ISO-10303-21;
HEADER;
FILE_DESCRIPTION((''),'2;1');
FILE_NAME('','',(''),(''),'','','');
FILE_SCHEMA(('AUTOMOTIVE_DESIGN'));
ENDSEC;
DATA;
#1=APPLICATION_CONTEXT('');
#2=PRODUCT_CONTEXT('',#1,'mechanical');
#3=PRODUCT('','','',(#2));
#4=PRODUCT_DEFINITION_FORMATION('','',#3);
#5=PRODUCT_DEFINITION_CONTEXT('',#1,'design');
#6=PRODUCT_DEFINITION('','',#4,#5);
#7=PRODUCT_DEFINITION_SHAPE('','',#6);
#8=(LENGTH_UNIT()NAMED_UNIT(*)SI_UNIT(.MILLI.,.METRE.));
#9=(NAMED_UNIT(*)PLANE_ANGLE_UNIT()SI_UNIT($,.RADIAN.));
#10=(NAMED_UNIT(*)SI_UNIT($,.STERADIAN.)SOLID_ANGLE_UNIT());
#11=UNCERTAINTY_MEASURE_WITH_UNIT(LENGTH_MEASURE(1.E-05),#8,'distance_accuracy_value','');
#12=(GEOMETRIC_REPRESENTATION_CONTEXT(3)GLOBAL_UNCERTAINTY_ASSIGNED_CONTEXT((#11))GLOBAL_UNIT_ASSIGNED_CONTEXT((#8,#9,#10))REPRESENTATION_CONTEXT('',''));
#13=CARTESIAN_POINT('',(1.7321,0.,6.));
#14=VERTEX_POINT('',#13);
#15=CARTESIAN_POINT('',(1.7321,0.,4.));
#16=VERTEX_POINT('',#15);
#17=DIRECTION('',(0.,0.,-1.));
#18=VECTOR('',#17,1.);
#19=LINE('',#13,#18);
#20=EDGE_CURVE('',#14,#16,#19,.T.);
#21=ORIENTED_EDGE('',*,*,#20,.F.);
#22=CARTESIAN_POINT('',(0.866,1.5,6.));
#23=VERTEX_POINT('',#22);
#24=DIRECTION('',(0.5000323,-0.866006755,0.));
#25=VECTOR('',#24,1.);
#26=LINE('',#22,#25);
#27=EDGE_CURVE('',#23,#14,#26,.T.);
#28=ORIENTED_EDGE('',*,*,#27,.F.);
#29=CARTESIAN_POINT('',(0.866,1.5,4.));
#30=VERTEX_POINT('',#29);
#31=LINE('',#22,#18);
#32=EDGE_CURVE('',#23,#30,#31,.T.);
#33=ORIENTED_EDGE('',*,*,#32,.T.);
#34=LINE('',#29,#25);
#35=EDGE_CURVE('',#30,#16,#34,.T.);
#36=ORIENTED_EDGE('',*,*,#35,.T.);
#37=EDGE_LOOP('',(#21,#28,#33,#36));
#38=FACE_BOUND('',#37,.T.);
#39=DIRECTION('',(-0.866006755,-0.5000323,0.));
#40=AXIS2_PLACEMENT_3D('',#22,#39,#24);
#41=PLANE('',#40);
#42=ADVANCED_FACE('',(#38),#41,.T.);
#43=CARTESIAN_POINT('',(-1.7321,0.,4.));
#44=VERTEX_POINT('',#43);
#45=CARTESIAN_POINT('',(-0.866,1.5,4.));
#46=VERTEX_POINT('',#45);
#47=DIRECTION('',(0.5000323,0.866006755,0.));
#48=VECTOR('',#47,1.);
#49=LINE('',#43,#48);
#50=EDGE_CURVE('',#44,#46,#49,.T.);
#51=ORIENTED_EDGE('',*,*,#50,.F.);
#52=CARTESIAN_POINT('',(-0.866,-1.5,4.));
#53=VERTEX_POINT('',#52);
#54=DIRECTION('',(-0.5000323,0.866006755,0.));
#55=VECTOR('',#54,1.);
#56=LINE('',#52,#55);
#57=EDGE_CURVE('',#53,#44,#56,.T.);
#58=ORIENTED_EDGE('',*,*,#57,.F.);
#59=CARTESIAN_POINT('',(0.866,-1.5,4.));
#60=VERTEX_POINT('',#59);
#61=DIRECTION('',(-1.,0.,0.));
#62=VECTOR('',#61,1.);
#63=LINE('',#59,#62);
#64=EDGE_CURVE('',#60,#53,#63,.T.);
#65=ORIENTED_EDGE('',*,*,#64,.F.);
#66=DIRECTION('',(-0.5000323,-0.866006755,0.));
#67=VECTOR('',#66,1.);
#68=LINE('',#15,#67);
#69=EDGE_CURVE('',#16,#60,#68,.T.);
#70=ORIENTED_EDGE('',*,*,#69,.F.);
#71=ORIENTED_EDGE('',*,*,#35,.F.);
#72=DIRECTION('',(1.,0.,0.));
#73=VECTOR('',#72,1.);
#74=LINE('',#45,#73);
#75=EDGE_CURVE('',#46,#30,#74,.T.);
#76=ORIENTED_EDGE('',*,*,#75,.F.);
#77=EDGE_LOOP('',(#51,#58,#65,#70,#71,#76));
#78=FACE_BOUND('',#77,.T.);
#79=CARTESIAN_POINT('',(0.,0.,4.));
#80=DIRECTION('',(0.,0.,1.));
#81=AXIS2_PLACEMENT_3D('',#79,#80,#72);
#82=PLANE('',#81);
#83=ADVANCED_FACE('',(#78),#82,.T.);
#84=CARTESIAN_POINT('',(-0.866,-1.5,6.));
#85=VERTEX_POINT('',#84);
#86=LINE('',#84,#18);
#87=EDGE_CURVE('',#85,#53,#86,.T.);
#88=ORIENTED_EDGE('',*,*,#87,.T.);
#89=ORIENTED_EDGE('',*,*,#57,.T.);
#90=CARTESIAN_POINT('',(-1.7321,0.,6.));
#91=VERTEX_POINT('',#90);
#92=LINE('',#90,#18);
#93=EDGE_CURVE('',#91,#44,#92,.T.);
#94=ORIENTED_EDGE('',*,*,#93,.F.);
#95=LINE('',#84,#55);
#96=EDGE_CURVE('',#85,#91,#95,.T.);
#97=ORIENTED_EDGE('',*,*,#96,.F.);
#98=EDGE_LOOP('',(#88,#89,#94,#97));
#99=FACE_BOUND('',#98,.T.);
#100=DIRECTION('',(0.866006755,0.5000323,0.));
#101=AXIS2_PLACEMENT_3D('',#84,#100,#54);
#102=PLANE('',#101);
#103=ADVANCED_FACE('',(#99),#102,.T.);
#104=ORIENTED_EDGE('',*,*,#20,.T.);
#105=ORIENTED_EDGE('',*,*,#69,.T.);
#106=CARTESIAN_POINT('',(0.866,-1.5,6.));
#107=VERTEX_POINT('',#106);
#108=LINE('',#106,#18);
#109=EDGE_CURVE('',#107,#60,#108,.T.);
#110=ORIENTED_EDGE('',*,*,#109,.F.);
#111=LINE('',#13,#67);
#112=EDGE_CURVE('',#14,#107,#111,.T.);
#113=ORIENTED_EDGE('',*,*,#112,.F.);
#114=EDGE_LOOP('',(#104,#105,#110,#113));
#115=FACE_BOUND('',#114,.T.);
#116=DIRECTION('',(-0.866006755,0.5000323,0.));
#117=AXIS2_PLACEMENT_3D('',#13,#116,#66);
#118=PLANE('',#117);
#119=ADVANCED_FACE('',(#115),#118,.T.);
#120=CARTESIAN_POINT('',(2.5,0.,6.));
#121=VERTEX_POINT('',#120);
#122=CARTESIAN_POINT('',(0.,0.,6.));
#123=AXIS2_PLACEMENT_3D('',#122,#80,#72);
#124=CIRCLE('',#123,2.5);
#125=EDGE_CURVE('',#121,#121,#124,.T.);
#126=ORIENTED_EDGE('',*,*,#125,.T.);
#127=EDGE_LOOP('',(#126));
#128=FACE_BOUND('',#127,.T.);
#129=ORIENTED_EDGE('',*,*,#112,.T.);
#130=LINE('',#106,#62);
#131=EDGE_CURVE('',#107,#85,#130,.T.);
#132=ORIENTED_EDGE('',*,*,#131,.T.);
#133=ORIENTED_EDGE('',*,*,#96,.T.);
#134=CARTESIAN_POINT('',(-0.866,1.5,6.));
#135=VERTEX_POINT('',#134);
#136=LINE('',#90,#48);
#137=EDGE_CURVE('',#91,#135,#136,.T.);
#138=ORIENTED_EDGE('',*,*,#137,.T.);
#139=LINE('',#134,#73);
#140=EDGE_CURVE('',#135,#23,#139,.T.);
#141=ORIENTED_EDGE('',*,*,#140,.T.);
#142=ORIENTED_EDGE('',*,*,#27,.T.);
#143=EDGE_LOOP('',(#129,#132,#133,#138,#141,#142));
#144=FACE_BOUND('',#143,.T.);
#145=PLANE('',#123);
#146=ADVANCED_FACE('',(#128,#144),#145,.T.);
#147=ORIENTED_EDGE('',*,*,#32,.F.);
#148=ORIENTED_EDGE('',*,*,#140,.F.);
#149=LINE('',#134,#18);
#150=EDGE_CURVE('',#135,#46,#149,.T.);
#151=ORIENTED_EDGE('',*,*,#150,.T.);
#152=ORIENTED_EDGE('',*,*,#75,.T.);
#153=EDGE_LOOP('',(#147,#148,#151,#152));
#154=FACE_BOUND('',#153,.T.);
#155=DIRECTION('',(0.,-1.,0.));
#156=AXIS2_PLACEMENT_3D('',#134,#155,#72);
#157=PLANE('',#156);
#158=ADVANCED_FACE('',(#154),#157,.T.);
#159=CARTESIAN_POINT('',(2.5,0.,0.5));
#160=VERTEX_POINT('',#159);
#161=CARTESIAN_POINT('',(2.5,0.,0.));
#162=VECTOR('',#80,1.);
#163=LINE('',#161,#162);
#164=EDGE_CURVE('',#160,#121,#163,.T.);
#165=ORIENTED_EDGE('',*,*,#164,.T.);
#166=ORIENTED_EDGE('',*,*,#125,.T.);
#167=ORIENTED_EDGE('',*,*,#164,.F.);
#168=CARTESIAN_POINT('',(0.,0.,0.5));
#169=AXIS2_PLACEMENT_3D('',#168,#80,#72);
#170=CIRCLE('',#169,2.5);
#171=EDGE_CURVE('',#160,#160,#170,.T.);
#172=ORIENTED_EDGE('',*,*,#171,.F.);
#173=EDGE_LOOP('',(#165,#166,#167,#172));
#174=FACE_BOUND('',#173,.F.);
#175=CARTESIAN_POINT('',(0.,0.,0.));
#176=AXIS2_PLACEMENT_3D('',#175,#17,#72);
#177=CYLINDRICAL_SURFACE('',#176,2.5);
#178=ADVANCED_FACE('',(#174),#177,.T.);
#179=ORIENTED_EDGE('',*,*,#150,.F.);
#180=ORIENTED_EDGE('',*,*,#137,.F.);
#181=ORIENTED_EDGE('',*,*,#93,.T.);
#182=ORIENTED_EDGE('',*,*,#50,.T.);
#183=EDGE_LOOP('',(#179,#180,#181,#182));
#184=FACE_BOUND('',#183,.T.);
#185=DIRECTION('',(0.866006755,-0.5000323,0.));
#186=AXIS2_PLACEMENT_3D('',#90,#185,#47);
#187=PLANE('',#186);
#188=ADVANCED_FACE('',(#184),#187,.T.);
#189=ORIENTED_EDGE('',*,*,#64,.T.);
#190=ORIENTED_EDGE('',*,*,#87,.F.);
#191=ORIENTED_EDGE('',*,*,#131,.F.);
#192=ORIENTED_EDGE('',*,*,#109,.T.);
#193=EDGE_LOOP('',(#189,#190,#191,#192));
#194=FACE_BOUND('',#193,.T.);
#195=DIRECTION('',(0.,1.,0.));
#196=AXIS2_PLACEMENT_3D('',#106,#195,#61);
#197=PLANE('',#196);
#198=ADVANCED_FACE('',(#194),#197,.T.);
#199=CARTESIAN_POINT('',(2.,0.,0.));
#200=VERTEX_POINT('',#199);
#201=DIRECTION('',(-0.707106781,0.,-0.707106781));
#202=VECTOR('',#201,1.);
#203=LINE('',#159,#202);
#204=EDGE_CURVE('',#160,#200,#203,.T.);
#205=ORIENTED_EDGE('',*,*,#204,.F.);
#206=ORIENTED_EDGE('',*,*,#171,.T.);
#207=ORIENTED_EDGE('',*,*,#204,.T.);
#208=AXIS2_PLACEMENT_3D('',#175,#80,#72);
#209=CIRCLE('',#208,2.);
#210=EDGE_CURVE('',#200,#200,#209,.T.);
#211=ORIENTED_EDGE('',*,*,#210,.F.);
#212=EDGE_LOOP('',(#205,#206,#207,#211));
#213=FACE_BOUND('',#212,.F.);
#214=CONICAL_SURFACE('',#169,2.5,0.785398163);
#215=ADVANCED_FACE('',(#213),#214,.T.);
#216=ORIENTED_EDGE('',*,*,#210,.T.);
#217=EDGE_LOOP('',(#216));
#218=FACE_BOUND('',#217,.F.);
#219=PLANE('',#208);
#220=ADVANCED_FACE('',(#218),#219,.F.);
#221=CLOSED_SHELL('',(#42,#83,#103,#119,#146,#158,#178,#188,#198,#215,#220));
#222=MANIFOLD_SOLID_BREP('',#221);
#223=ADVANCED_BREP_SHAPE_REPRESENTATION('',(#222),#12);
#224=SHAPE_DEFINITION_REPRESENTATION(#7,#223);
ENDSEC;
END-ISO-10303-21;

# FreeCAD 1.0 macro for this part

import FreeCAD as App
import Part
import Sketcher


def edges_at(feature, points):
    """Names of the edges that pass closest to the given points."""
    edges = feature.Shape.Edges
    near = lambda p: min(range(len(edges)), key=lambda i: edges[i].distToShape(Part.Vertex(*p))[0])
    return sorted({f"Edge{near(p) + 1}" for p in points})


def add_polygon(sketch, points):
    """Adds a closed chain of lines whose ends are joined by coincident constraints."""
    first, n = sketch.GeometryCount, len(points)
    for a, b in zip(points, points[1:] + points[:1]):
        sketch.addGeometry(Part.LineSegment(App.Vector(*a, 0), App.Vector(*b, 0)), False)
    for i in range(n):
        sketch.addConstraint(Sketcher.Constraint("Coincident", first + i, 2, first + (i + 1) % n, 1))

doc = App.newDocument("Part")
body = doc.addObject("PartDesign::Body", "Body")

sketch1 = doc.addObject("Sketcher::SketchObject", "Sketch")
body.addObject(sketch1)
sketch1.AttachmentSupport = (doc.XY_Plane, [""])
sketch1.MapMode = "FlatFace"
sketch1.addGeometry(Part.Circle(App.Vector(0, 0, 0), App.Vector(0, 0, 1), 2.5), False)
sketch1.addConstraint([
    Sketcher.Constraint("Coincident", 0, 3, -1, 1),
    Sketcher.Constraint("Diameter", 0, 5.0),
])
pad1 = doc.addObject("PartDesign::Pad", "Pad")
body.addObject(pad1)
pad1.Profile = sketch1
pad1.Length = 6
doc.recompute()

chamfer = doc.addObject("PartDesign::Chamfer", "Chamfer")
body.addObject(chamfer)
chamfer.Base = (pad1, edges_at(pad1, [(-2.5, 0, 0)]))
chamfer.Size = 0.5

sketch2 = doc.addObject("Sketcher::SketchObject", "Sketch001")
body.addObject(sketch2)
sketch2.AttachmentSupport = (doc.XY_Plane, [""])
sketch2.MapMode = "FlatFace"
sketch2.AttachmentOffset = App.Placement(App.Vector(0, 0, 6), App.Rotation())
add_polygon(sketch2, [(1.7, 0), (0.9, 1.5), (-0.9, 1.5), (-1.7, 0), (-0.9, -1.5), (0.9, -1.5)])
sketch2.addConstraint([
    Sketcher.Constraint("Horizontal", 1),
    Sketcher.Constraint("Horizontal", 4),
    Sketcher.Constraint("Symmetric", 0, 2, 3, 2, -1, 1),
    Sketcher.Constraint("Symmetric", 2, 2, 5, 2, -1, 1),
    Sketcher.Constraint("PointOnObject", 2, 2, -1),
    Sketcher.Constraint("Parallel", 2, 5),
    Sketcher.Constraint("Vertical", 1, 2, 3, 2),
    Sketcher.Constraint("DistanceY", 3, 2, 1, 2, 3.0),
    Sketcher.Constraint("DistanceX", 1, 2, 1, 1, 1.732),
    Sketcher.Constraint("Distance", 0, 1.732),
])
pocket1 = doc.addObject("PartDesign::Pocket", "Pocket")
body.addObject(pocket1)
pocket1.Profile = sketch2
pocket1.Length = 2

doc.recompute()
